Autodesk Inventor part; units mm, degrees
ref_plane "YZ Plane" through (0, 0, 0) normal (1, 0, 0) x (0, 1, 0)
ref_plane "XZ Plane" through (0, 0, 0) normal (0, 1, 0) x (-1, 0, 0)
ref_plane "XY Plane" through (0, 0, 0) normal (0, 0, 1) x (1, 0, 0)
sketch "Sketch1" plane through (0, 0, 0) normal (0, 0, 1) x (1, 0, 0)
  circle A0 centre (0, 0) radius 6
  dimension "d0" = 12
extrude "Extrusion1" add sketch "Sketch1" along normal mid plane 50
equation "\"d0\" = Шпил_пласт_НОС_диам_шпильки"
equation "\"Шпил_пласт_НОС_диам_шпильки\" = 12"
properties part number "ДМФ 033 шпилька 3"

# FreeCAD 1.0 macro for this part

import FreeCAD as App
import Part
import Sketcher

V = App.Vector

doc = App.newDocument("Part")
body = doc.addObject("PartDesign::Body", "Body")

# Sketch on XY plane
sketch1 = doc.addObject("Sketcher::SketchObject", "Sketch")
body.addObject(sketch1)
sketch1.AttachmentSupport = (doc.XY_Plane, [""])
sketch1.MapMode = "FlatFace"
sketch1.addGeometry(Part.Circle(V(0, 0, 0), V(0, 0, 1), 6), False)
sketch1.addConstraint(Sketcher.Constraint("Coincident", 0, 3, -1, 1))
sketch1.addConstraint(Sketcher.Constraint("Diameter", 0, 12.0))
pad1 = doc.addObject("PartDesign::Pad", "Pad")
body.addObject(pad1)
pad1.Profile = sketch1
pad1.Length = 50
pad1.Midplane = True

doc.recompute()
